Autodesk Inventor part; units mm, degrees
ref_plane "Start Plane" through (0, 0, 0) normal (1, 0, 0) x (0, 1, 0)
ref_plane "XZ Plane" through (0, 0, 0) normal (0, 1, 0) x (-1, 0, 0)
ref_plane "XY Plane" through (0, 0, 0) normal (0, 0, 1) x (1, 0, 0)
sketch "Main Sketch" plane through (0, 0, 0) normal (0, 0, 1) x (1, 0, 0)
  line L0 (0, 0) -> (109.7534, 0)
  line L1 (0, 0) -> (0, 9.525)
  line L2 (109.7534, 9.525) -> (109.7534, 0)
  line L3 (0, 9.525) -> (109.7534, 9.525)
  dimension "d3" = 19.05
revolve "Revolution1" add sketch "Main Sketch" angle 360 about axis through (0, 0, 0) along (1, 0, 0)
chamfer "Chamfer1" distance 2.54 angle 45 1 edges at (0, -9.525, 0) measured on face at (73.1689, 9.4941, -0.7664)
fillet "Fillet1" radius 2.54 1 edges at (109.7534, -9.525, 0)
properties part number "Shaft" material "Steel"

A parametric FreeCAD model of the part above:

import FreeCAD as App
import Part
import Sketcher
Q = App.Units.Quantity


def edges_at(feature, points):
    """Names of the edges that pass closest to the given points."""
    edges = feature.Shape.Edges
    near = lambda p: min(range(len(edges)), key=lambda i: edges[i].distToShape(Part.Vertex(*p))[0])
    return sorted({f"Edge{near(p) + 1}" for p in points})

doc = App.newDocument("Part")
params = doc.addObject("Spreadsheet::Sheet", "Params")
for row, (alias, value) in enumerate([
    ("sketch1_width", "4.321 in"),
    ("sketch1_height", "0.375 in"),
    ("revolution_angle", "360 deg"),
    ("chamfer_size", "0.1 in"),
    ("fillet_radius", "0.1 in"),
], start=1):
    params.set(f"A{row}", alias)
    params.set(f"B{row}", "=" + value)
    params.setAlias(f"B{row}", alias)

body = doc.addObject("PartDesign::Body", "Body")

# Sketch on XY plane
sketch1 = body.newObject("Sketcher::SketchObject", "Sketch")
sketch1.AttachmentSupport = (doc.getObject("XY_Plane"), [""])
sketch1.MapMode = "FlatFace"
sketch1.addGeometry([
    Part.LineSegment(App.Vector(0, 10, 0), App.Vector(0, 0, 0)),
    Part.LineSegment(App.Vector(0, 0, 0), App.Vector(110, 0, 0)),
    Part.LineSegment(App.Vector(110, 0, 0), App.Vector(110, 10, 0)),
    Part.LineSegment(App.Vector(110, 10, 0), App.Vector(0, 10, 0)),
], False)
sketch1.addConstraint([
    Sketcher.Constraint("Coincident", 0, 2, 1, 1),
    Sketcher.Constraint("Coincident", 1, 2, 2, 1),
    Sketcher.Constraint("Coincident", 2, 2, 3, 1),
    Sketcher.Constraint("Coincident", 3, 2, 0, 1),
    Sketcher.Constraint("Vertical", 0),
    Sketcher.Constraint("Horizontal", 1),
    Sketcher.Constraint("Vertical", 2),
    Sketcher.Constraint("Horizontal", 3),
    Sketcher.Constraint("Coincident", 0, 2, -1, 1),
    Sketcher.Constraint("DistanceX", 1, 1, 1, 2, Q("4.321 in")),
    Sketcher.Constraint("DistanceY", 0, 2, 0, 1, Q("0.375 in")),
])
sketch1.setExpression("Constraints[9]", "Params.sketch1_width")
sketch1.setExpression("Constraints[10]", "Params.sketch1_height")
revolution = body.newObject("PartDesign::Revolution", "Revolution")
revolution.Profile = sketch1
revolution.ReferenceAxis = (sketch1, ["H_Axis"])
revolution.setExpression("Angle", "Params.revolution_angle")
doc.recompute()

chamfer = body.newObject("PartDesign::Chamfer", "Chamfer")
chamfer.Base = (revolution, edges_at(revolution, [(0, -9.525, 0)]))
chamfer.setExpression("Size", "Params.chamfer_size")
doc.recompute()

fillet = body.newObject("PartDesign::Fillet", "Fillet")
fillet.Base = (chamfer, edges_at(chamfer, [(109.753, -9.525, 0)]))
fillet.setExpression("Radius", "Params.fillet_radius")

doc.recompute()
